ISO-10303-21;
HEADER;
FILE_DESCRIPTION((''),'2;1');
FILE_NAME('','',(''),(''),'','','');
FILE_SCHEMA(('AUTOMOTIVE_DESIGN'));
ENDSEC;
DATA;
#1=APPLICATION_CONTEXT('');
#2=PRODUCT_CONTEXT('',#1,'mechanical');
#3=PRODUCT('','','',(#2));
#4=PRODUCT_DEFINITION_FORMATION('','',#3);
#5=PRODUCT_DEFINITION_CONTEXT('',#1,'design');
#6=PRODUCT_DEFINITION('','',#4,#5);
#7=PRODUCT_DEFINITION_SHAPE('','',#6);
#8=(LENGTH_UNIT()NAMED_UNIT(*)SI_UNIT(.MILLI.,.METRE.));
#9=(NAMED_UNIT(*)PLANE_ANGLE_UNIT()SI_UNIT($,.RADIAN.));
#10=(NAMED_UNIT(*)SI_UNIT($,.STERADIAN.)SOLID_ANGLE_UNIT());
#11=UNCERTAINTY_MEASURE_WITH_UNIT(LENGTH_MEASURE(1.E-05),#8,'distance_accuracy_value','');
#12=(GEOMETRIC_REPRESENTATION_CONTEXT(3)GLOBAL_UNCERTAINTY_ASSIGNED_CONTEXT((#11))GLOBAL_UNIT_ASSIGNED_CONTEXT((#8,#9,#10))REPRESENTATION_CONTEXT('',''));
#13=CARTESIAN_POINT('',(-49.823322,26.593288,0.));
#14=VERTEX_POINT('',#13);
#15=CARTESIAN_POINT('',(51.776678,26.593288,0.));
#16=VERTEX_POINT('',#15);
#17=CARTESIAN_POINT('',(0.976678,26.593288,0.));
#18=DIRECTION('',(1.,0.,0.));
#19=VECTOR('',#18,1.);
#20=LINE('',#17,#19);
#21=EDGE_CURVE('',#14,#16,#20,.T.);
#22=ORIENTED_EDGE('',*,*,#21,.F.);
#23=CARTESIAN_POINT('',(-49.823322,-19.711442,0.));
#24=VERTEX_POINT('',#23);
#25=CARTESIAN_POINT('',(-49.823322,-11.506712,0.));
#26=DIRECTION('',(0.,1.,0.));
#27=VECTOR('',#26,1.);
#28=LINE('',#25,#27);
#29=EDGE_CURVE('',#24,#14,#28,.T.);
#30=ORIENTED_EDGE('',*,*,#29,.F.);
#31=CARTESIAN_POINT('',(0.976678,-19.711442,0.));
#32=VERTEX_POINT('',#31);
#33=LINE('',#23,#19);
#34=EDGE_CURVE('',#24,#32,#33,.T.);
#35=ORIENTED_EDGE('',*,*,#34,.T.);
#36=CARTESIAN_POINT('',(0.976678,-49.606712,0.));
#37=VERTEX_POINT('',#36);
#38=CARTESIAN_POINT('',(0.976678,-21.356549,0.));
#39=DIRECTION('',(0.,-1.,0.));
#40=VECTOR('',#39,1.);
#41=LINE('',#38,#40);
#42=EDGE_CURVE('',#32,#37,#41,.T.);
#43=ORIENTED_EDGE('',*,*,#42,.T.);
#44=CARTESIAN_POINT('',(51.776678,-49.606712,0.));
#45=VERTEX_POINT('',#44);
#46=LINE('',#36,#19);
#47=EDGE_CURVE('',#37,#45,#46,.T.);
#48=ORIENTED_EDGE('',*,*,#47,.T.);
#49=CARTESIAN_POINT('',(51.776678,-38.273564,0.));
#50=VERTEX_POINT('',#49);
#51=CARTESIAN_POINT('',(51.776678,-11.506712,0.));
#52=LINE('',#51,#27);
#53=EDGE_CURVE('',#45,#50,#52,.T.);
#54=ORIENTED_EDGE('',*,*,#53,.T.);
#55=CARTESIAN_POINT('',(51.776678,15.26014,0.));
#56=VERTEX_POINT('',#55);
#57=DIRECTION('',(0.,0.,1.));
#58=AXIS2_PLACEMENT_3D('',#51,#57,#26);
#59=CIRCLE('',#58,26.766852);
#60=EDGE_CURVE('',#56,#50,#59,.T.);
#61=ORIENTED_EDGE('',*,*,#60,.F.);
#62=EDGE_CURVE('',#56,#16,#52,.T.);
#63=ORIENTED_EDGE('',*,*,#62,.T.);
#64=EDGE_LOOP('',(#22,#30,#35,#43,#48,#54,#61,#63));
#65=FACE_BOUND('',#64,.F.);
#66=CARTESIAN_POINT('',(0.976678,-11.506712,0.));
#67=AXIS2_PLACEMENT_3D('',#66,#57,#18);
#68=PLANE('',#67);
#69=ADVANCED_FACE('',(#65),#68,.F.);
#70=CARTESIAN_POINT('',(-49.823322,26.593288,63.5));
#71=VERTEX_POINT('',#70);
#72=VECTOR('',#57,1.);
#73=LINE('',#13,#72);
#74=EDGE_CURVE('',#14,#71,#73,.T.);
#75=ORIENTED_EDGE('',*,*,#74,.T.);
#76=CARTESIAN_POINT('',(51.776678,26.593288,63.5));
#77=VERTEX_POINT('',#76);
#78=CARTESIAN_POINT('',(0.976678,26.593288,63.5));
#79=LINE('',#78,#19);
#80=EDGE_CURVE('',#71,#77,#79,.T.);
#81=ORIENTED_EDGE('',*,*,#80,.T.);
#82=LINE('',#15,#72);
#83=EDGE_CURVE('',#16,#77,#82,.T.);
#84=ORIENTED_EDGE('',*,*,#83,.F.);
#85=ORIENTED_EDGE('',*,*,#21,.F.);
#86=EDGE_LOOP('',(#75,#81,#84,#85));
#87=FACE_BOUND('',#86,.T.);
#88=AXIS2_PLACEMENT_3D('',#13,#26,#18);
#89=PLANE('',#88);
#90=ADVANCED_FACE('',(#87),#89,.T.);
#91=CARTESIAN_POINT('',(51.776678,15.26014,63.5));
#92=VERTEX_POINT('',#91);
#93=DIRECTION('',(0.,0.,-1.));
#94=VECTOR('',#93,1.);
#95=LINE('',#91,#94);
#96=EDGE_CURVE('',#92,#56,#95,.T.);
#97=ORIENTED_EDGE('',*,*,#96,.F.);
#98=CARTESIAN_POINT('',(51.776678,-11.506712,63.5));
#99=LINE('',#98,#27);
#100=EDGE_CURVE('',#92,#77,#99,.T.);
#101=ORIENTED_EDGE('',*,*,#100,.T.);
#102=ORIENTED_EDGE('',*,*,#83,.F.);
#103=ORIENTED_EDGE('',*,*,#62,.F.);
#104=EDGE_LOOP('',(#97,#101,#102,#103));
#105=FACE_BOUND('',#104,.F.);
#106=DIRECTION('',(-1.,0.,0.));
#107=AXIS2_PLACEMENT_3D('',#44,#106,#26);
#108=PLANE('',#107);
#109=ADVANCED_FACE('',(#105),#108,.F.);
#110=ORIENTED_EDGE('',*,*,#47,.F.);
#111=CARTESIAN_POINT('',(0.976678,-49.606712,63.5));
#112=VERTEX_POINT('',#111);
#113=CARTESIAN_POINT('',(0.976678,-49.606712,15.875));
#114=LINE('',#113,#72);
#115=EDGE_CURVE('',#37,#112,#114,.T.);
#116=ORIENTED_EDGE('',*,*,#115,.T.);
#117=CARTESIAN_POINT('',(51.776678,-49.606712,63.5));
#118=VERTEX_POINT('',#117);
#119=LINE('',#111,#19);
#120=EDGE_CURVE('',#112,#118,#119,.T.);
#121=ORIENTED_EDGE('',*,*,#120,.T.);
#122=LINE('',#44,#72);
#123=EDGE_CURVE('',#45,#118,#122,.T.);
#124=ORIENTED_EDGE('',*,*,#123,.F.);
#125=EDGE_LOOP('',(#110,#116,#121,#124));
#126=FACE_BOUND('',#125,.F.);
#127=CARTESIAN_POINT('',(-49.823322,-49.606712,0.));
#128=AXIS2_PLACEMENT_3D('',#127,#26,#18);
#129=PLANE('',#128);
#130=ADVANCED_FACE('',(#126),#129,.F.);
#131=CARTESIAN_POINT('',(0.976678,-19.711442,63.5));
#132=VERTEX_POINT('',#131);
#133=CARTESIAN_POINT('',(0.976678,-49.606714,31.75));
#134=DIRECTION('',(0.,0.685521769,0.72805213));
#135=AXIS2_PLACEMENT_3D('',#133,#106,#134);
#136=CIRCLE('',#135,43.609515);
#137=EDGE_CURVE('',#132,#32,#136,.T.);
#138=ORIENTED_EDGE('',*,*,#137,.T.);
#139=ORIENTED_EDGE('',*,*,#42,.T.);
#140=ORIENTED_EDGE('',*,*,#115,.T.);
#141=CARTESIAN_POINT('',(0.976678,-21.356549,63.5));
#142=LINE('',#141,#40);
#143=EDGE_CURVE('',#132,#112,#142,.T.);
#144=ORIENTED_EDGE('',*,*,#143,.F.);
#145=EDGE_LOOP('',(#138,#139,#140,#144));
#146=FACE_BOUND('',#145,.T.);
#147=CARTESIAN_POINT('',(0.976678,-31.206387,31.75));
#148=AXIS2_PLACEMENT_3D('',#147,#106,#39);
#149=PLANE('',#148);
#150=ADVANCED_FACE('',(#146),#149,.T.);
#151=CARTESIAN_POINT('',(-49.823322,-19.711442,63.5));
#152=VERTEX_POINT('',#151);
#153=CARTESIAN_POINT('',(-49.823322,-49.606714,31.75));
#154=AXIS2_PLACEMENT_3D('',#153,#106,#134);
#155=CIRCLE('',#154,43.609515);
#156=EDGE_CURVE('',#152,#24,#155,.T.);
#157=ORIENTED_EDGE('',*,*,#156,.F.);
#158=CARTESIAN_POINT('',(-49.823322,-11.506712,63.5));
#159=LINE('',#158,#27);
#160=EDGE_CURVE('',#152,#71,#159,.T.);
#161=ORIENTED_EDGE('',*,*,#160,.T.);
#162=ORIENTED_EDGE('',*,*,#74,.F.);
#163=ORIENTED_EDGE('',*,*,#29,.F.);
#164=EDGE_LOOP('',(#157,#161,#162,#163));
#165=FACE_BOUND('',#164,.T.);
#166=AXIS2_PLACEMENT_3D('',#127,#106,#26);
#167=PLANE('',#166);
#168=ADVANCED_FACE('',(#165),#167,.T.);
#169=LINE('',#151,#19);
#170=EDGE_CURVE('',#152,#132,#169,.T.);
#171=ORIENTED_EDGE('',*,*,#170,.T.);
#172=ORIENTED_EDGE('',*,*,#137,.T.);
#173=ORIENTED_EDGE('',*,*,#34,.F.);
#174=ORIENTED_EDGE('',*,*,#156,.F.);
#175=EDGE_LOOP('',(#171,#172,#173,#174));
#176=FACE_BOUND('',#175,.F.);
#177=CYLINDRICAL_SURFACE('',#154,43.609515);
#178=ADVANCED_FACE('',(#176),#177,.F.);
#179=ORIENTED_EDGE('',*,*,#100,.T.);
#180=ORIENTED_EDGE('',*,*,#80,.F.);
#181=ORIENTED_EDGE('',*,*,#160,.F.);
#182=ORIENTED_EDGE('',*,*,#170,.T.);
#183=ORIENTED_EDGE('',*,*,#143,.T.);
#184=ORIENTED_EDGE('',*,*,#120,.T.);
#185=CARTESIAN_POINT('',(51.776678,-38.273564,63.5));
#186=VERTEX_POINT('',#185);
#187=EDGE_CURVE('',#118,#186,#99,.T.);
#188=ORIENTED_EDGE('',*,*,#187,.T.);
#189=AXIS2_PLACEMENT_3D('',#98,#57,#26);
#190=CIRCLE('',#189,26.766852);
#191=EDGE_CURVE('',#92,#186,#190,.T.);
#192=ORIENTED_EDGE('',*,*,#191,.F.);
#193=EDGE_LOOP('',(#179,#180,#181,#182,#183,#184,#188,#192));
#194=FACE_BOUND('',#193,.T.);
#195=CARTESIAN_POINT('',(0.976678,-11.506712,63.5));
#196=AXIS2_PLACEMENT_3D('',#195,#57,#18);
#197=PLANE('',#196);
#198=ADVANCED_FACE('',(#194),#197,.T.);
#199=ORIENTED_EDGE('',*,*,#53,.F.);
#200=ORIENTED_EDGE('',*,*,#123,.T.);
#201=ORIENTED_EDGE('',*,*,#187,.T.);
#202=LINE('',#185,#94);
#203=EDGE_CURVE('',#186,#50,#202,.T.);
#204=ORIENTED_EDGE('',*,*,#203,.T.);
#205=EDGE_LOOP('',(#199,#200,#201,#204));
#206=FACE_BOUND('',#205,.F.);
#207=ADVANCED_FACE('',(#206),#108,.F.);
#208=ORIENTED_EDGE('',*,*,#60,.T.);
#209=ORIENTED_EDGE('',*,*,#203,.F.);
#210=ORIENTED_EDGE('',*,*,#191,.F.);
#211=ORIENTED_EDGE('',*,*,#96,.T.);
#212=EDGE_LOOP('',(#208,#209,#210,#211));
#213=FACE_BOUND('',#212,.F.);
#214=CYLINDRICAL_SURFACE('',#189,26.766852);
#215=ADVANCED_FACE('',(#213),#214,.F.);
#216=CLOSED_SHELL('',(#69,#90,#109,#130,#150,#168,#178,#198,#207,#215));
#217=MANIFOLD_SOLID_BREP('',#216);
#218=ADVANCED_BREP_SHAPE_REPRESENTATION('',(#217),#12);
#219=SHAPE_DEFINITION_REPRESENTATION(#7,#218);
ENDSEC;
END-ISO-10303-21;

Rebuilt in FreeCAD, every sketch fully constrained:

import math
import FreeCAD as App
import Part
import Sketcher
Q = App.Units.Quantity

doc = App.newDocument("Part")
body = doc.addObject("PartDesign::Body", "Body")

# Sketch on XY plane
sketch1 = body.newObject("Sketcher::SketchObject", "Sketch")
sketch1.AttachmentSupport = (doc.getObject("XY_Plane"), [""])
sketch1.MapMode = "FlatFace"
sketch1.addGeometry([
    Part.LineSegment(App.Vector(-50, 27, 0), App.Vector(-50, -50, 0)),
    Part.LineSegment(App.Vector(-50, -50, 0), App.Vector(52, -50, 0)),
    Part.LineSegment(App.Vector(52, -50, 0), App.Vector(52, 27, 0)),
    Part.LineSegment(App.Vector(52, 27, 0), App.Vector(-50, 27, 0)),
], False)
sketch1.addConstraint([
    Sketcher.Constraint("Coincident", 0, 2, 1, 1),
    Sketcher.Constraint("Coincident", 1, 2, 2, 1),
    Sketcher.Constraint("Coincident", 2, 2, 3, 1),
    Sketcher.Constraint("Coincident", 3, 2, 0, 1),
    Sketcher.Constraint("Vertical", 0),
    Sketcher.Constraint("Horizontal", 1),
    Sketcher.Constraint("Vertical", 2),
    Sketcher.Constraint("Horizontal", 3),
    Sketcher.Constraint("DistanceX", 1, 1, 1, 2, Q("4 in")),
    Sketcher.Constraint("DistanceY", 0, 2, 0, 1, Q("3 in")),
    Sketcher.Constraint("DistanceX", 0, 2, -1, 1, 49.823322),
    Sketcher.Constraint("DistanceY", -1, 1, 2, 2, 26.593288),
])
pad1 = body.newObject("PartDesign::Pad", "Pad")
pad1.Profile = sketch1
pad1.Length = Q("2.5 in")

# Sketch on XY plane
sketch2 = body.newObject("Sketcher::SketchObject", "Sketch001")
sketch2.AttachmentSupport = (doc.getObject("XY_Plane"), [""])
sketch2.MapMode = "FlatFace"
sketch2.AttachmentOffset = App.Placement(App.Vector(0, 0, 2.5 * 25.4), App.Rotation())
sketch2.addGeometry([
    Part.ArcOfCircle(Part.Circle(App.Vector(52, -12, 0), App.Vector(0, 0, 1), 27), math.radians(90), math.radians(270)),
    Part.ArcOfCircle(Part.Circle(App.Vector(52, -12, 0), App.Vector(0, 0, 1), 27), math.radians(-90), math.radians(0)),
    Part.ArcOfCircle(Part.Circle(App.Vector(52, -12, 0), App.Vector(0, 0, 1), 27), math.radians(0), math.radians(90)),
], False)
sketch2.addConstraint([
    Sketcher.Constraint("Tangent", 0, 2, 1, 1),
    Sketcher.Constraint("Tangent", 1, 2, 2, 1),
    Sketcher.Constraint("Tangent", 2, 2, 0, 1),
    Sketcher.Constraint("Horizontal", 2, 3, 1, 2),
    Sketcher.Constraint("Vertical", 2, 3, 0, 2),
    Sketcher.Constraint("Vertical", 0, 2, 2, 2),
    Sketcher.Constraint("Radius", 0, 26.766852),
    Sketcher.Constraint("DistanceY", 1, 3, -1, 1, 11.50671),
    Sketcher.Constraint("DistanceX", -1, 1, 1, 2, 78.54353),
])
pocket1 = body.newObject("PartDesign::Pocket", "Pocket")
pocket1.Profile = sketch2
pocket1.Type = "ThroughAll"

# Sketch on YZ plane
sketch3 = body.newObject("Sketcher::SketchObject", "Sketch002")
sketch3.AttachmentSupport = (doc.getObject("YZ_Plane"), [""])
sketch3.MapMode = "FlatFace"
sketch3.AttachmentOffset = App.Placement(App.Vector(0, 0, -49.823322), App.Rotation())
sketch3.addGeometry([
    Part.ArcOfCircle(Part.Circle(App.Vector(-50, 32, 0), App.Vector(0, 0, 1), 44), math.radians(-47), math.radians(47)),
    Part.ArcOfCircle(Part.Circle(App.Vector(-50, 32, 0), App.Vector(0, 0, 1), 44), math.radians(180), math.radians(313)),
    Part.ArcOfCircle(Part.Circle(App.Vector(-50, 32, 0), App.Vector(0, 0, 1), 44), math.radians(47), math.radians(180)),
], False)
sketch3.addConstraint([
    Sketcher.Constraint("Tangent", 0, 1, 1, 2),
    Sketcher.Constraint("Tangent", 1, 1, 2, 2),
    Sketcher.Constraint("Tangent", 2, 1, 0, 2),
    Sketcher.Constraint("PointOnObject", 0, 1, -1),
    Sketcher.Constraint("Horizontal", 2, 3, 1, 1),
    Sketcher.Constraint("Vertical", 0, 1, 2, 1),
    Sketcher.Constraint("DistanceY", -1, 1, 2, 1, Q("2.5 in")),
    Sketcher.Constraint("Radius", 0, 43.609515),
    Sketcher.Constraint("DistanceX", 1, 3, -1, 1, 49.606712),
])
pocket2 = body.newObject("PartDesign::Pocket", "Pocket001")
pocket2.Profile = sketch3
pocket2.Length = Q("2 in")
pocket2.Reversed = True

doc.recompute()
